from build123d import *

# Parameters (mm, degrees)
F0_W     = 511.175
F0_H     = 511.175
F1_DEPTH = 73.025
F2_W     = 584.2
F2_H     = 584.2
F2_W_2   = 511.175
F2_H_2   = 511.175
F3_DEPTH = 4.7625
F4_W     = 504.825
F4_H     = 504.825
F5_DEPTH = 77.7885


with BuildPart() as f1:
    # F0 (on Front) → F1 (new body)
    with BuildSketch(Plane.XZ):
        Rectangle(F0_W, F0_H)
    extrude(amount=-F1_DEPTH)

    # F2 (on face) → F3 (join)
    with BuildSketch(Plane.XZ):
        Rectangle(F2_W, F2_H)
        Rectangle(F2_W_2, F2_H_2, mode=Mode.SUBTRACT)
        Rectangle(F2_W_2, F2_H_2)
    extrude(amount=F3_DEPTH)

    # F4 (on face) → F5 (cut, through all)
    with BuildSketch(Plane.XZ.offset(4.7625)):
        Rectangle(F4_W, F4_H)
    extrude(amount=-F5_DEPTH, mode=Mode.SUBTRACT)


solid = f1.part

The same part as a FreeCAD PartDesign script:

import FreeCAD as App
import Part
import Sketcher

V = App.Vector
Q = App.Units.Quantity

doc = App.newDocument("Part")
body = doc.addObject("PartDesign::Body", "Body")

sketch1 = body.newObject("Sketcher::SketchObject", "Sketch")
sketch1.AttachmentSupport = (doc.getObject("XZ_Plane"), [""])
sketch1.MapMode = "FlatFace"
sketch1.addGeometry([
    Part.LineSegment(V(-256, 256, 0), V(-256, -256, 0)),
    Part.LineSegment(V(-256, -256, 0), V(256, -256, 0)),
    Part.LineSegment(V(256, -256, 0), V(256, 256, 0)),
    Part.LineSegment(V(256, 256, 0), V(-256, 256, 0)),
], False)
sketch1.addConstraint([
    Sketcher.Constraint("Coincident", 0, 2, 1, 1),
    Sketcher.Constraint("Coincident", 1, 2, 2, 1),
    Sketcher.Constraint("Coincident", 2, 2, 3, 1),
    Sketcher.Constraint("Coincident", 3, 2, 0, 1),
    Sketcher.Constraint("Vertical", 0),
    Sketcher.Constraint("Horizontal", 1),
    Sketcher.Constraint("Vertical", 2),
    Sketcher.Constraint("Horizontal", 3),
    Sketcher.Constraint("Symmetric", 0, 2, 2, 2, -1, 1),
    Sketcher.Constraint("Equal", 3, 0),
    Sketcher.Constraint("DistanceX", 1, 1, 1, 2, Q("20.125 in")),
])
pad1 = body.newObject("PartDesign::Pad", "Pad")
pad1.Profile = sketch1
pad1.Length = Q("2.875 in")
pad1.Reversed = True

sketch2 = body.newObject("Sketcher::SketchObject", "Sketch001")
sketch2.AttachmentSupport = (doc.getObject("XZ_Plane"), [""])
sketch2.MapMode = "FlatFace"
sketch2.addGeometry([
    Part.LineSegment(V(-292, 292, 0), V(-292, -292, 0)),
    Part.LineSegment(V(-292, -292, 0), V(292, -292, 0)),
    Part.LineSegment(V(292, -292, 0), V(292, 292, 0)),
    Part.LineSegment(V(292, 292, 0), V(-292, 292, 0)),
], False)
sketch2.addConstraint([
    Sketcher.Constraint("Coincident", 0, 2, 1, 1),
    Sketcher.Constraint("Coincident", 1, 2, 2, 1),
    Sketcher.Constraint("Coincident", 2, 2, 3, 1),
    Sketcher.Constraint("Coincident", 3, 2, 0, 1),
    Sketcher.Constraint("Vertical", 0),
    Sketcher.Constraint("Horizontal", 1),
    Sketcher.Constraint("Vertical", 2),
    Sketcher.Constraint("Horizontal", 3),
    Sketcher.Constraint("Symmetric", 0, 2, 2, 2, -1, 1),
    Sketcher.Constraint("Equal", 3, 0),
    Sketcher.Constraint("DistanceX", 1, 1, 1, 2, Q("23 in")),
])
pad2 = body.newObject("PartDesign::Pad", "Pad001")
pad2.Profile = sketch2
pad2.Length = Q("0.1875 in")

sketch3 = body.newObject("Sketcher::SketchObject", "Sketch002")
sketch3.AttachmentSupport = (doc.getObject("XZ_Plane"), [""])
sketch3.MapMode = "FlatFace"
sketch3.AttachmentOffset = App.Placement(V(0, 0, 0.1875 * 25.4), App.Rotation())
sketch3.addGeometry([
    Part.LineSegment(V(-252, 252, 0), V(-252, -252, 0)),
    Part.LineSegment(V(-252, -252, 0), V(252, -252, 0)),
    Part.LineSegment(V(252, -252, 0), V(252, 252, 0)),
    Part.LineSegment(V(252, 252, 0), V(-252, 252, 0)),
], False)
sketch3.addConstraint([
    Sketcher.Constraint("Coincident", 0, 2, 1, 1),
    Sketcher.Constraint("Coincident", 1, 2, 2, 1),
    Sketcher.Constraint("Coincident", 2, 2, 3, 1),
    Sketcher.Constraint("Coincident", 3, 2, 0, 1),
    Sketcher.Constraint("Vertical", 0),
    Sketcher.Constraint("Horizontal", 1),
    Sketcher.Constraint("Vertical", 2),
    Sketcher.Constraint("Horizontal", 3),
    Sketcher.Constraint("Symmetric", 0, 2, 2, 2, -1, 1),
    Sketcher.Constraint("Equal", 3, 0),
    Sketcher.Constraint("DistanceX", 1, 1, 1, 2, Q("19.875 in")),
])
pocket1 = body.newObject("PartDesign::Pocket", "Pocket")
pocket1.Profile = sketch3
pocket1.Type = "ThroughAll"

doc.recompute()
